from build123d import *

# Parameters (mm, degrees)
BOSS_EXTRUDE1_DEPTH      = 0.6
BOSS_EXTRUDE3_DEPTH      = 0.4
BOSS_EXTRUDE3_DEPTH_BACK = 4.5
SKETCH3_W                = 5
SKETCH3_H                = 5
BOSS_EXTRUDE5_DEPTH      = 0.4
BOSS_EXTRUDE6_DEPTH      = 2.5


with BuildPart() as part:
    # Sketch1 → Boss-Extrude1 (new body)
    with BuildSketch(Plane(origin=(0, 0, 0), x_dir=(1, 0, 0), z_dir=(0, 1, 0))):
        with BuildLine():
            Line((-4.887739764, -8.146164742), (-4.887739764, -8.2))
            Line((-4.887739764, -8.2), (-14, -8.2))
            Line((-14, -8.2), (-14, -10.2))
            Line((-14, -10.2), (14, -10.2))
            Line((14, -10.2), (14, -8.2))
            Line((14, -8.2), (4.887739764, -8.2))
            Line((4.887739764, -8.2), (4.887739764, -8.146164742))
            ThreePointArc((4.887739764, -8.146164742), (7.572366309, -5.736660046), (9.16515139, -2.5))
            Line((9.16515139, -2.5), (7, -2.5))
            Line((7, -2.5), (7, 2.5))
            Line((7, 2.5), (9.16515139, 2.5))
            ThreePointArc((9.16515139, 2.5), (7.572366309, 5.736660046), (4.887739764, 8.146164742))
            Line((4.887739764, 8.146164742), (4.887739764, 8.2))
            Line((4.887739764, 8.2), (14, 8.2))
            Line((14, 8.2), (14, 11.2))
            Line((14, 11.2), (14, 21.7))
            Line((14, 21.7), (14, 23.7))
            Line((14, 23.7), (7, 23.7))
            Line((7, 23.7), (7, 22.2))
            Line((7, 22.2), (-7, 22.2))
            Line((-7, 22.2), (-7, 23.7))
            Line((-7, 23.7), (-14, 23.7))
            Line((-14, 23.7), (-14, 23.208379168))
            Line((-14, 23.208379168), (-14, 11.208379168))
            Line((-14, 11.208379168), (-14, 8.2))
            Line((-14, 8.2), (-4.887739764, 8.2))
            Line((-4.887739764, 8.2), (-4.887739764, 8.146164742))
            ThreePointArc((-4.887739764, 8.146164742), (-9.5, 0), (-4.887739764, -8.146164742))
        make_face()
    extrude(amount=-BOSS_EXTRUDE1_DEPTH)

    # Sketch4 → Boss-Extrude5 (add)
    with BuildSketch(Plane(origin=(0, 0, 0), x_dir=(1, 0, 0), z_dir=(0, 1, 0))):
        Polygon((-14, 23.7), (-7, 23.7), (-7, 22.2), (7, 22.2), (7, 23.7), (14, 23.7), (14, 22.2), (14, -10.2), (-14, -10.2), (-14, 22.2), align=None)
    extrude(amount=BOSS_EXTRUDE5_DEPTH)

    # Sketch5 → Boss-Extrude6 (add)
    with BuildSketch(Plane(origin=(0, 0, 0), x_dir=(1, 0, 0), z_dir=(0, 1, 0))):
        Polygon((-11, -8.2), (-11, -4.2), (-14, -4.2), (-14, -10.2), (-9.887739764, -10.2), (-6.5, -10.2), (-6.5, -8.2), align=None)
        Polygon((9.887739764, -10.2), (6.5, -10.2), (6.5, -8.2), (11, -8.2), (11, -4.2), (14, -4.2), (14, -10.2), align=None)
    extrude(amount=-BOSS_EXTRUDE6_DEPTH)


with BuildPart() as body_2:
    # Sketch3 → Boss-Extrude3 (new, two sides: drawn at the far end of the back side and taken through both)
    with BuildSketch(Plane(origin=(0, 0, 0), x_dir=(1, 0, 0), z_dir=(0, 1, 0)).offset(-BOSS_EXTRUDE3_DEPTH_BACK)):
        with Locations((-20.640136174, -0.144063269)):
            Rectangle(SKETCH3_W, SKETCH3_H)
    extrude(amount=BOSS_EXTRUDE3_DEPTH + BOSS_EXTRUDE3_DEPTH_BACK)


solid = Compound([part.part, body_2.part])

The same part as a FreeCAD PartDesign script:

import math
import FreeCAD as App
import Part
import Sketcher

doc = App.newDocument("Part")
body = doc.addObject("PartDesign::Body", "Body")

# Sketch on XZ plane
sketch1 = body.newObject("Sketcher::SketchObject", "Sketch")
sketch1.AttachmentSupport = (doc.getObject("XZ_Plane"), [""])
sketch1.MapMode = "FlatFace"
sketch1.addGeometry([
    Part.LineSegment(App.Vector(-4.89, 8.15, 0), App.Vector(-4.89, 8.2, 0)),  # 0
    Part.LineSegment(App.Vector(-4.89, 8.2, 0), App.Vector(-14, 8.2, 0)),  # 1
    Part.LineSegment(App.Vector(-14, 8.2, 0), App.Vector(-14, 10.2, 0)),  # 2
    Part.LineSegment(App.Vector(-14, 10.2, 0), App.Vector(14, 10.2, 0)),  # 3
    Part.LineSegment(App.Vector(14, 10.2, 0), App.Vector(14, 8.2, 0)),  # 4
    Part.LineSegment(App.Vector(14, 8.2, 0), App.Vector(4.89, 8.2, 0)),  # 5
    Part.LineSegment(App.Vector(4.89, 8.2, 0), App.Vector(4.89, 8.15, 0)),  # 6
    Part.ArcOfCircle(Part.Circle(App.Vector(0, 0, 0), App.Vector(0, 0, 1), 9.5), math.radians(15), math.radians(59)),  # 7
    Part.LineSegment(App.Vector(9.17, 2.5, 0), App.Vector(7, 2.5, 0)),  # 8
    Part.LineSegment(App.Vector(7, 2.5, 0), App.Vector(7, -2.5, 0)),  # 9
    Part.LineSegment(App.Vector(7, -2.5, 0), App.Vector(9.17, -2.5, 0)),  # 10
    Part.ArcOfCircle(Part.Circle(App.Vector(0, 0, 0), App.Vector(0, 0, 1), 9.5), math.radians(-59), math.radians(-15)),  # 11
    Part.LineSegment(App.Vector(4.89, -8.15, 0), App.Vector(4.89, -8.2, 0)),  # 12
    Part.LineSegment(App.Vector(4.89, -8.2, 0), App.Vector(14, -8.2, 0)),  # 13
    Part.LineSegment(App.Vector(14, -8.2, 0), App.Vector(14, -23.7, 0)),  # 14
    Part.LineSegment(App.Vector(14, -23.7, 0), App.Vector(7, -23.7, 0)),  # 15
    Part.LineSegment(App.Vector(7, -23.7, 0), App.Vector(7, -22.2, 0)),  # 16
    Part.LineSegment(App.Vector(7, -22.2, 0), App.Vector(-7, -22.2, 0)),  # 17
    Part.LineSegment(App.Vector(-7, -22.2, 0), App.Vector(-7, -23.7, 0)),  # 18
    Part.LineSegment(App.Vector(-7, -23.7, 0), App.Vector(-14, -23.7, 0)),  # 19
    Part.LineSegment(App.Vector(-14, -23.7, 0), App.Vector(-14, -8.2, 0)),  # 20
    Part.LineSegment(App.Vector(-14, -8.2, 0), App.Vector(-4.89, -8.2, 0)),  # 21
    Part.LineSegment(App.Vector(-4.89, -8.2, 0), App.Vector(-4.89, -8.15, 0)),  # 22
    Part.ArcOfCircle(Part.Circle(App.Vector(0, 0, 0), App.Vector(0, 0, 1), 9.5), math.radians(121), math.radians(239)),  # 23
], False)
sketch1.addConstraint([
    Sketcher.Constraint("Coincident", 0, 2, 1, 1),
    Sketcher.Constraint("Coincident", 1, 2, 2, 1),
    Sketcher.Constraint("Coincident", 2, 2, 3, 1),
    Sketcher.Constraint("Coincident", 3, 2, 4, 1),
    Sketcher.Constraint("Coincident", 4, 2, 5, 1),
    Sketcher.Constraint("Coincident", 5, 2, 6, 1),
    Sketcher.Constraint("Coincident", 6, 2, 7, 2),
    Sketcher.Constraint("Coincident", 7, 1, 8, 1),
    Sketcher.Constraint("Coincident", 8, 2, 9, 1),
    Sketcher.Constraint("Coincident", 9, 2, 10, 1),
    Sketcher.Constraint("Coincident", 10, 2, 11, 2),
    Sketcher.Constraint("Coincident", 11, 1, 12, 1),
    Sketcher.Constraint("Coincident", 12, 2, 13, 1),
    Sketcher.Constraint("Coincident", 13, 2, 14, 1),
    Sketcher.Constraint("Coincident", 14, 2, 15, 1),
    Sketcher.Constraint("Coincident", 15, 2, 16, 1),
    Sketcher.Constraint("Coincident", 16, 2, 17, 1),
    Sketcher.Constraint("Coincident", 17, 2, 18, 1),
    Sketcher.Constraint("Coincident", 18, 2, 19, 1),
    Sketcher.Constraint("Coincident", 19, 2, 20, 1),
    Sketcher.Constraint("Coincident", 20, 2, 21, 1),
    Sketcher.Constraint("Coincident", 21, 2, 22, 1),
    Sketcher.Constraint("Coincident", 22, 2, 23, 2),
    Sketcher.Constraint("Coincident", 23, 1, 0, 1),
    Sketcher.Constraint("Vertical", 0),
    Sketcher.Constraint("Horizontal", 1),
    Sketcher.Constraint("Vertical", 2),
    Sketcher.Constraint("Horizontal", 3),
    Sketcher.Constraint("Vertical", 4),
    Sketcher.Constraint("Horizontal", 5),
    Sketcher.Constraint("Vertical", 6),
    Sketcher.Constraint("Horizontal", 8),
    Sketcher.Constraint("Vertical", 9),
    Sketcher.Constraint("Horizontal", 10),
    Sketcher.Constraint("Vertical", 12),
    Sketcher.Constraint("Horizontal", 13),
    Sketcher.Constraint("Vertical", 14),
    Sketcher.Constraint("Horizontal", 15),
    Sketcher.Constraint("Vertical", 16),
    Sketcher.Constraint("Horizontal", 17),
    Sketcher.Constraint("Vertical", 18),
    Sketcher.Constraint("Horizontal", 19),
    Sketcher.Constraint("Vertical", 20),
    Sketcher.Constraint("Horizontal", 21),
    Sketcher.Constraint("Vertical", 22),
    Sketcher.Constraint("Coincident", 7, 3, -1, 1),
    Sketcher.Constraint("Coincident", 11, 3, -1, 1),
    Sketcher.Constraint("Coincident", 23, 3, -1, 1),
    Sketcher.Constraint("Equal", 7, 11),
    Sketcher.Constraint("Equal", 11, 23),
    Sketcher.Constraint("Symmetric", 0, 2, 12, 2, -1, 1),
    Sketcher.Constraint("Symmetric", 4, 2, 20, 2, -1, 1),
    Sketcher.Constraint("Symmetric", 1, 2, 4, 2, -2),
    Sketcher.Constraint("Symmetric", 15, 2, 18, 2, -2),
    Sketcher.Constraint("Horizontal", 11, 1, 22, 2),
    Sketcher.Constraint("Horizontal", 6, 2, 23, 1),
    Sketcher.Constraint("Vertical", 7, 1, 10, 2),
    Sketcher.Constraint("Vertical", 4, 2, 13, 2),
    Sketcher.Constraint("Vertical", 9, 2, 15, 2),
    Sketcher.Constraint("Radius", 7, 9.5),
    Sketcher.Constraint("DistanceX", 3, 1, 3, 2, 28.0),
    Sketcher.Constraint("DistanceX", 15, 2, 15, 1, 7.0),
    Sketcher.Constraint("DistanceY", 2, 1, 2, 2, 2.0),
    Sketcher.Constraint("DistanceY", 9, 2, 9, 1, 5.0),
    Sketcher.Constraint("DistanceY", 14, 2, 14, 1, 15.5),
    Sketcher.Constraint("DistanceY", 16, 1, 16, 2, 1.5),
    Sketcher.Constraint("DistanceY", -1, 1, 0, 2, 8.2),
    Sketcher.Constraint("DistanceX", 1, 2, 1, 1, 9.11226),
])
pad1 = body.newObject("PartDesign::Pad", "Pad")
pad1.Profile = sketch1
pad1.Length = 0.6

# Sketch on XZ plane
sketch2 = body.newObject("Sketcher::SketchObject", "Sketch001")
sketch2.AttachmentSupport = (doc.getObject("XZ_Plane"), [""])
sketch2.MapMode = "FlatFace"
sketch2.addGeometry([
    Part.LineSegment(App.Vector(-7, -23.7, 0), App.Vector(-14, -23.7, 0)),  # 0
    Part.LineSegment(App.Vector(-14, -23.7, 0), App.Vector(-14, 10.2, 0)),  # 1
    Part.LineSegment(App.Vector(-14, 10.2, 0), App.Vector(14, 10.2, 0)),  # 2
    Part.LineSegment(App.Vector(14, 10.2, 0), App.Vector(14, -23.7, 0)),  # 3
    Part.LineSegment(App.Vector(14, -23.7, 0), App.Vector(7, -23.7, 0)),  # 4
    Part.LineSegment(App.Vector(7, -23.7, 0), App.Vector(7, -22.2, 0)),  # 5
    Part.LineSegment(App.Vector(7, -22.2, 0), App.Vector(-7, -22.2, 0)),  # 6
    Part.LineSegment(App.Vector(-7, -22.2, 0), App.Vector(-7, -23.7, 0)),  # 7
], False)
sketch2.addConstraint([
    Sketcher.Constraint("Coincident", 0, 2, 1, 1),
    Sketcher.Constraint("Coincident", 1, 2, 2, 1),
    Sketcher.Constraint("Coincident", 2, 2, 3, 1),
    Sketcher.Constraint("Coincident", 3, 2, 4, 1),
    Sketcher.Constraint("Coincident", 4, 2, 5, 1),
    Sketcher.Constraint("Coincident", 5, 2, 6, 1),
    Sketcher.Constraint("Coincident", 6, 2, 7, 1),
    Sketcher.Constraint("Coincident", 7, 2, 0, 1),
    Sketcher.Constraint("Horizontal", 0),
    Sketcher.Constraint("Vertical", 1),
    Sketcher.Constraint("Horizontal", 2),
    Sketcher.Constraint("Vertical", 3),
    Sketcher.Constraint("Horizontal", 4),
    Sketcher.Constraint("Vertical", 5),
    Sketcher.Constraint("Horizontal", 6),
    Sketcher.Constraint("Vertical", 7),
    Sketcher.Constraint("Symmetric", 0, 2, 3, 2, -2),
    Sketcher.Constraint("Equal", 0, 4),
    Sketcher.Constraint("DistanceX", 0, 2, 0, 1, 7.0),
    Sketcher.Constraint("DistanceX", 2, 1, 2, 2, 28.0),
    Sketcher.Constraint("DistanceY", 1, 1, 1, 2, 33.9),
    Sketcher.Constraint("DistanceY", 5, 1, 5, 2, 1.5),
    Sketcher.Constraint("DistanceY", 0, 2, -1, 1, 23.7),
])
pad2 = body.newObject("PartDesign::Pad", "Pad001")
pad2.Profile = sketch2
pad2.Length = 0.4
pad2.Reversed = True

# Sketch on XZ plane
sketch3 = body.newObject("Sketcher::SketchObject", "Sketch002")
sketch3.AttachmentSupport = (doc.getObject("XZ_Plane"), [""])
sketch3.MapMode = "FlatFace"
sketch3.addGeometry([
    Part.LineSegment(App.Vector(-11, 8.2, 0), App.Vector(-11, 4.2, 0)),  # 0
    Part.LineSegment(App.Vector(-11, 4.2, 0), App.Vector(-14, 4.2, 0)),  # 1
    Part.LineSegment(App.Vector(-14, 4.2, 0), App.Vector(-14, 10.2, 0)),  # 2
    Part.LineSegment(App.Vector(-14, 10.2, 0), App.Vector(-6.5, 10.2, 0)),  # 3
    Part.LineSegment(App.Vector(-6.5, 10.2, 0), App.Vector(-6.5, 8.2, 0)),  # 4
    Part.LineSegment(App.Vector(-6.5, 8.2, 0), App.Vector(-11, 8.2, 0)),  # 5
    Part.LineSegment(App.Vector(6.5, 10.2, 0), App.Vector(14, 10.2, 0)),  # 6
    Part.LineSegment(App.Vector(14, 10.2, 0), App.Vector(14, 4.2, 0)),  # 7
    Part.LineSegment(App.Vector(14, 4.2, 0), App.Vector(11, 4.2, 0)),  # 8
    Part.LineSegment(App.Vector(11, 4.2, 0), App.Vector(11, 8.2, 0)),  # 9
    Part.LineSegment(App.Vector(11, 8.2, 0), App.Vector(6.5, 8.2, 0)),  # 10
    Part.LineSegment(App.Vector(6.5, 8.2, 0), App.Vector(6.5, 10.2, 0)),  # 11
], False)
sketch3.addConstraint([
    Sketcher.Constraint("Coincident", 0, 2, 1, 1),
    Sketcher.Constraint("Coincident", 1, 2, 2, 1),
    Sketcher.Constraint("Coincident", 2, 2, 3, 1),
    Sketcher.Constraint("Coincident", 3, 2, 4, 1),
    Sketcher.Constraint("Coincident", 4, 2, 5, 1),
    Sketcher.Constraint("Coincident", 5, 2, 0, 1),
    Sketcher.Constraint("Coincident", 6, 2, 7, 1),
    Sketcher.Constraint("Coincident", 7, 2, 8, 1),
    Sketcher.Constraint("Coincident", 8, 2, 9, 1),
    Sketcher.Constraint("Coincident", 9, 2, 10, 1),
    Sketcher.Constraint("Coincident", 10, 2, 11, 1),
    Sketcher.Constraint("Coincident", 11, 2, 6, 1),
    Sketcher.Constraint("Vertical", 0),
    Sketcher.Constraint("Horizontal", 1),
    Sketcher.Constraint("Vertical", 2),
    Sketcher.Constraint("Horizontal", 3),
    Sketcher.Constraint("Vertical", 4),
    Sketcher.Constraint("Horizontal", 5),
    Sketcher.Constraint("Horizontal", 6),
    Sketcher.Constraint("Vertical", 7),
    Sketcher.Constraint("Horizontal", 8),
    Sketcher.Constraint("Vertical", 9),
    Sketcher.Constraint("Horizontal", 10),
    Sketcher.Constraint("Vertical", 11),
    Sketcher.Constraint("Symmetric", 2, 2, 6, 2, -2),
    Sketcher.Constraint("Symmetric", 0, 2, 8, 2, -2),
    Sketcher.Constraint("Symmetric", 4, 2, 10, 2, -2),
    Sketcher.Constraint("DistanceX", 1, 2, 1, 1, 3.0),
    Sketcher.Constraint("DistanceY", 0, 2, 0, 1, 4.0),
    Sketcher.Constraint("DistanceY", 2, 1, 2, 2, 6.0),
    Sketcher.Constraint("DistanceX", 3, 1, 3, 2, 7.5),
    Sketcher.Constraint("DistanceX", 0, 2, -1, 1, 11.0),
    Sketcher.Constraint("DistanceY", -1, 1, 0, 2, 4.2),
])
pad3 = body.newObject("PartDesign::Pad", "Pad002")
pad3.Profile = sketch3
pad3.Length = 2.5
body2 = doc.addObject("PartDesign::Body", "Body001")

# Sketch on XZ plane
sketch4 = body2.newObject("Sketcher::SketchObject", "Sketch003")
sketch4.AttachmentSupport = (doc.getObject("XZ_Plane001"), [""])
sketch4.MapMode = "FlatFace"
sketch4.addGeometry([
    Part.LineSegment(App.Vector(-23, -2, 0), App.Vector(-23, 3, 0)),
    Part.LineSegment(App.Vector(-23, 3, 0), App.Vector(-18, 3, 0)),
    Part.LineSegment(App.Vector(-18, 3, 0), App.Vector(-18, -2, 0)),
    Part.LineSegment(App.Vector(-18, -2, 0), App.Vector(-23, -2, 0)),
], False)
sketch4.addConstraint([
    Sketcher.Constraint("Coincident", 0, 2, 1, 1),
    Sketcher.Constraint("Coincident", 1, 2, 2, 1),
    Sketcher.Constraint("Coincident", 2, 2, 3, 1),
    Sketcher.Constraint("Coincident", 3, 2, 0, 1),
    Sketcher.Constraint("Vertical", 0),
    Sketcher.Constraint("Horizontal", 1),
    Sketcher.Constraint("Vertical", 2),
    Sketcher.Constraint("Horizontal", 3),
    Sketcher.Constraint("Equal", 3, 0),
    Sketcher.Constraint("DistanceX", 1, 1, 1, 2, 5.0),
    Sketcher.Constraint("DistanceX", 0, 2, -1, 1, 23.140136),
    Sketcher.Constraint("DistanceY", -1, 1, 0, 2, 2.644063),
])
pad4 = body2.newObject("PartDesign::Pad", "Pad003")
pad4.Profile = sketch4
pad4.Type = "TwoLengths"
pad4.Length = 0.4
pad4.Length2 = 4.5
pad4.Reversed = True

doc.recompute()
